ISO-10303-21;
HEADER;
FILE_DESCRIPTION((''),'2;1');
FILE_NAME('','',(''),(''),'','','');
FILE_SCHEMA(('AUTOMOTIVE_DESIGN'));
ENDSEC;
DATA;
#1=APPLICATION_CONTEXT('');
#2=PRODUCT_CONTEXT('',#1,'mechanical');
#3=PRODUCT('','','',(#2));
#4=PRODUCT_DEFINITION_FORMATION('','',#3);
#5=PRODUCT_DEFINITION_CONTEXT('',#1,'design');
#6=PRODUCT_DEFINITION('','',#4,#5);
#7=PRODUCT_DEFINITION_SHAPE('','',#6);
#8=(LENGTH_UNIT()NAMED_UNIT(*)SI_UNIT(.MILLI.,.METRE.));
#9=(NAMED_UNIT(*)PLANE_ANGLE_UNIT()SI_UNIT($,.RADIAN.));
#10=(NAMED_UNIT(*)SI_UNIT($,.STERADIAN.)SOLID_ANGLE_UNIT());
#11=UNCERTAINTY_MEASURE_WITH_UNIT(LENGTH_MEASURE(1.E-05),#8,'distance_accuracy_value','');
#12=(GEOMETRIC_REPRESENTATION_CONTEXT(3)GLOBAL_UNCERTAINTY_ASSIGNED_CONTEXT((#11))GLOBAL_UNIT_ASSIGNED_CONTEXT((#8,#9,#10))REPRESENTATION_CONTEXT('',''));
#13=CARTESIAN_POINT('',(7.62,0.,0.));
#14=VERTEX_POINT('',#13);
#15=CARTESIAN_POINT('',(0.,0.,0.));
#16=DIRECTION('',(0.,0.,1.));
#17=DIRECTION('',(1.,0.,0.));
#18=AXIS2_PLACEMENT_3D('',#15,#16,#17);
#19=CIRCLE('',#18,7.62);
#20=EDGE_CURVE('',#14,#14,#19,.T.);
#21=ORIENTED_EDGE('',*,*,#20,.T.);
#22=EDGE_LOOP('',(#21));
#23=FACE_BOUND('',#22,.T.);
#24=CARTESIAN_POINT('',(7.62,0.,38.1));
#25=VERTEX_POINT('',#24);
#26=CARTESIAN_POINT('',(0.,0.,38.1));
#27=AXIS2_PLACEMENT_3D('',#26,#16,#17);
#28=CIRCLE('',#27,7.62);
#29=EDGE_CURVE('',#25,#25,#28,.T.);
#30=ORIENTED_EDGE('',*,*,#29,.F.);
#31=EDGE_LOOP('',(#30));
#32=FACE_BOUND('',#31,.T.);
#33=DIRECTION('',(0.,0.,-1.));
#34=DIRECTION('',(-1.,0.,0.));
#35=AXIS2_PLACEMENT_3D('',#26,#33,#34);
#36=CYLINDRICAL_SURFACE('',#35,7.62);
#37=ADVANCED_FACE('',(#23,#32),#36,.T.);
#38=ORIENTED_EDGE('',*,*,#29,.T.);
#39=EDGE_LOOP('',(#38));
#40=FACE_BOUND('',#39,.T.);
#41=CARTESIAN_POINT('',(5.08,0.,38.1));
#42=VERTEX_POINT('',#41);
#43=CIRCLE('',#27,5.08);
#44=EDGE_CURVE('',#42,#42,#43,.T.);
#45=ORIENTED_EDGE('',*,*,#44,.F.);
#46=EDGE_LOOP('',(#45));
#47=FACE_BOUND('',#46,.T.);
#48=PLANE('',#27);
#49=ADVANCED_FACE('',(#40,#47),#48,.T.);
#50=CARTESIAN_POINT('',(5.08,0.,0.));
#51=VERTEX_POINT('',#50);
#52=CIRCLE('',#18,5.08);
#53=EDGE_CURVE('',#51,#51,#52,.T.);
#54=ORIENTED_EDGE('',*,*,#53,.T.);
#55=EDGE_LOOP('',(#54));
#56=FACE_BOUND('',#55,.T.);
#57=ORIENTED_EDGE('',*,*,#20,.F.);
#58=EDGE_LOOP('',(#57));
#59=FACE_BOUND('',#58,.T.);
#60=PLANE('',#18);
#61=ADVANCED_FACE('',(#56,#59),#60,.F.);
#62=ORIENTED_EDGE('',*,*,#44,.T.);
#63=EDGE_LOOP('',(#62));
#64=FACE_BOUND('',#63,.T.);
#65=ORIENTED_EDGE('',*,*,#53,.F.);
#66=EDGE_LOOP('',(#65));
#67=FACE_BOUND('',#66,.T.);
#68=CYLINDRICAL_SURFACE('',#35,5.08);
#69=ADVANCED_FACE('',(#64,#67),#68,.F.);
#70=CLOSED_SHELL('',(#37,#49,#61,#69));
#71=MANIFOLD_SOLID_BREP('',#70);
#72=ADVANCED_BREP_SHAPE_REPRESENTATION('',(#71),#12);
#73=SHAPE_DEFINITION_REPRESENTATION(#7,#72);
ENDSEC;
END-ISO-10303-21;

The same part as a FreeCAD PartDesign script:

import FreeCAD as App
import Part
import Sketcher
Q = App.Units.Quantity

doc = App.newDocument("Part")
body = doc.addObject("PartDesign::Body", "Body")

# Sketch on XY plane
sketch1 = body.newObject("Sketcher::SketchObject", "Sketch")
sketch1.AttachmentSupport = (doc.getObject("XY_Plane"), [""])
sketch1.MapMode = "FlatFace"
sketch1.addGeometry(Part.Circle(App.Vector(0, 0, 0), App.Vector(0, 0, 1), 8), False)
sketch1.addGeometry(Part.Circle(App.Vector(0, 0, 0), App.Vector(0, 0, 1), 5), False)
sketch1.addConstraint(Sketcher.Constraint("Coincident", 0, 3, -1, 1))
sketch1.addConstraint(Sketcher.Constraint("Coincident", 1, 3, -1, 1))
sketch1.addConstraint(Sketcher.Constraint("Diameter", 0, Q("0.6 in")))
sketch1.addConstraint(Sketcher.Constraint("Diameter", 1, Q("0.4 in")))
pad1 = body.newObject("PartDesign::Pad", "Pad")
pad1.Profile = sketch1
pad1.Length = Q("1.5 in")

doc.recompute()
